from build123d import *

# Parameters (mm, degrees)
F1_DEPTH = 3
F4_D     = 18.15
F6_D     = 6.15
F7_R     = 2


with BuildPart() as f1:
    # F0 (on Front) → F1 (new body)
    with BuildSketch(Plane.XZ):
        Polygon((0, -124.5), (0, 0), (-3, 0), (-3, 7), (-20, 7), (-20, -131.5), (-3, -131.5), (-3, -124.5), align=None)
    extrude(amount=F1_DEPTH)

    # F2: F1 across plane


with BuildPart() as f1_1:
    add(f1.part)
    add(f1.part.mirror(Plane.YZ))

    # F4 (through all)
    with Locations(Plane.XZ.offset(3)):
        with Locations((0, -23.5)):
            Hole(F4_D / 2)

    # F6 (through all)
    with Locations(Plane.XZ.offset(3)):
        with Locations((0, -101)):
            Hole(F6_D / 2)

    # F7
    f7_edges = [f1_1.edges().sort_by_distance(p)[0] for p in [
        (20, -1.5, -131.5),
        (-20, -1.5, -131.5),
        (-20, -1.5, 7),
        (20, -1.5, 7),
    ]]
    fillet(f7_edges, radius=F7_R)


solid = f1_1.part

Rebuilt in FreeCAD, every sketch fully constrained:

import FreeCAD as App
import Part
import Sketcher
Q = App.Units.Quantity


def edges_at(feature, points):
    """Names of the edges that pass closest to the given points."""
    edges = feature.Shape.Edges
    near = lambda p: min(range(len(edges)), key=lambda i: edges[i].distToShape(Part.Vertex(*p))[0])
    return sorted({f"Edge{near(p) + 1}" for p in points})

doc = App.newDocument("Part")
params = doc.addObject("Spreadsheet::Sheet", "Params")
for row, (alias, value) in enumerate([
    ("sketch1_width", "3 mm"),
    ("sketch1_width2", "17 mm"),
    ("sketch1_height", "7 mm"),
    ("sketch1_height2", "124.5 mm"),
    ("pad1_length", "3 mm"),
    ("sketch2_diameter", "18.15 mm"),
    ("hole_diameter", "18.15 mm"),
    ("sketch3_diameter", "6.15 mm"),
    ("hole2_diameter", "6.15 mm"),
    ("fillet_radius", "2 mm"),
], start=1):
    params.set(f"A{row}", alias)
    params.set(f"B{row}", "=" + value)
    params.setAlias(f"B{row}", alias)

body = doc.addObject("PartDesign::Body", "Body")

# Sketch on XZ plane
sketch1 = doc.addObject("Sketcher::SketchObject", "Sketch")
body.addObject(sketch1)
sketch1.AttachmentSupport = (doc.XZ_Plane, [""])
sketch1.MapMode = "FlatFace"
sketch1.addGeometry([
    Part.LineSegment(App.Vector(0, -124.5, 0), App.Vector(0, 0, 0)),  # 0
    Part.LineSegment(App.Vector(0, 0, 0), App.Vector(-3, 0, 0)),  # 1
    Part.LineSegment(App.Vector(-3, 0, 0), App.Vector(-3, 7, 0)),  # 2
    Part.LineSegment(App.Vector(-3, 7, 0), App.Vector(-20, 7, 0)),  # 3
    Part.LineSegment(App.Vector(-20, 7, 0), App.Vector(-20, -131.5, 0)),  # 4
    Part.LineSegment(App.Vector(-20, -131.5, 0), App.Vector(-3, -131.5, 0)),  # 5
    Part.LineSegment(App.Vector(-3, -131.5, 0), App.Vector(-3, -124.5, 0)),  # 6
    Part.LineSegment(App.Vector(-3, -124.5, 0), App.Vector(0, -124.5, 0)),  # 7
], False)
sketch1.addConstraint([
    Sketcher.Constraint("Coincident", 0, 2, 1, 1),
    Sketcher.Constraint("Coincident", 1, 2, 2, 1),
    Sketcher.Constraint("Coincident", 2, 2, 3, 1),
    Sketcher.Constraint("Coincident", 3, 2, 4, 1),
    Sketcher.Constraint("Coincident", 4, 2, 5, 1),
    Sketcher.Constraint("Coincident", 5, 2, 6, 1),
    Sketcher.Constraint("Coincident", 6, 2, 7, 1),
    Sketcher.Constraint("Coincident", 7, 2, 0, 1),
    Sketcher.Constraint("Vertical", 0),
    Sketcher.Constraint("Horizontal", 1),
    Sketcher.Constraint("Vertical", 2),
    Sketcher.Constraint("Horizontal", 3),
    Sketcher.Constraint("Vertical", 4),
    Sketcher.Constraint("Horizontal", 5),
    Sketcher.Constraint("Vertical", 6),
    Sketcher.Constraint("Horizontal", 7),
    Sketcher.Constraint("Coincident", 0, 2, -1, 1),
    Sketcher.Constraint("Vertical", 2, 2, 5, 2),
    Sketcher.Constraint("Equal", 2, 6),
    Sketcher.Constraint("DistanceX", 1, 2, 1, 1, Q("3 mm")),
    Sketcher.Constraint("DistanceX", 3, 2, 3, 1, Q("17 mm")),
    Sketcher.Constraint("DistanceY", 2, 1, 2, 2, Q("7 mm")),
    Sketcher.Constraint("DistanceY", 0, 1, 0, 2, Q("124.5 mm")),
])
sketch1.setExpression("Constraints[19]", "Params.sketch1_width")
sketch1.setExpression("Constraints[20]", "Params.sketch1_width2")
sketch1.setExpression("Constraints[21]", "Params.sketch1_height")
sketch1.setExpression("Constraints[22]", "Params.sketch1_height2")
pad1 = doc.addObject("PartDesign::Pad", "Pad")
body.addObject(pad1)
pad1.Profile = sketch1
pad1.setExpression("Length", "Params.pad1_length")
body2 = doc.addObject("PartDesign::Body", "Body001")
doc.recompute()

body2.BaseFeature = body
doc.recompute()

mirroring = doc.addObject("Part::Mirroring", "Mirroring")
mirroring.Source = body
mirroring.Base = App.Vector(0, 0, 0)
mirroring.Normal = App.Vector(1, 0, 0)
body3 = doc.addObject("PartDesign::Body", "Body002")
body3.BaseFeature = mirroring
boolean = doc.addObject("PartDesign::Boolean", "Boolean")
body2.addObject(boolean)
boolean.Type = "Fuse"
boolean.addObjects([body3])
doc.recompute()

# Sketch on XZ plane
sketch2 = doc.addObject("Sketcher::SketchObject", "Sketch001")
body2.addObject(sketch2)
sketch2.AttachmentSupport = (doc.getObject("XZ_Plane001"), [""])
sketch2.MapMode = "FlatFace"
sketch2.AttachmentOffset = App.Placement(App.Vector(0, 0, 3), App.Rotation())
sketch2.addGeometry(Part.Circle(App.Vector(0, -24, 0), App.Vector(0, 0, 1), 9), False)
sketch2.addConstraint([
    Sketcher.Constraint("PointOnObject", 0, 3, -2),
    Sketcher.Constraint("Diameter", 0, Q("18.15 mm")),
    Sketcher.Constraint("DistanceY", 0, 3, -1, 1, Q("23.5 mm")),
])
sketch2.setExpression("Constraints[1]", "Params.sketch2_diameter")
doc.recompute()
hole = doc.addObject("PartDesign::Hole", "Hole")
body2.addObject(hole)
hole.Profile = sketch2
hole.ThreadType = "None"
hole.setExpression("Diameter", "Params.hole_diameter")
hole.DepthType = "ThroughAll"

# Sketch on XZ plane
sketch3 = doc.addObject("Sketcher::SketchObject", "Sketch002")
body2.addObject(sketch3)
sketch3.AttachmentSupport = (doc.getObject("XZ_Plane001"), [""])
sketch3.MapMode = "FlatFace"
sketch3.AttachmentOffset = App.Placement(App.Vector(0, 0, 3), App.Rotation())
sketch3.addGeometry(Part.Circle(App.Vector(0, -101, 0), App.Vector(0, 0, 1), 3.1), False)
sketch3.addConstraint([
    Sketcher.Constraint("PointOnObject", 0, 3, -2),
    Sketcher.Constraint("Diameter", 0, Q("6.15 mm")),
    Sketcher.Constraint("DistanceY", 0, 3, -1, 1, Q("101 mm")),
])
sketch3.setExpression("Constraints[1]", "Params.sketch3_diameter")
doc.recompute()
hole2 = doc.addObject("PartDesign::Hole", "Hole001")
body2.addObject(hole2)
hole2.Profile = sketch3
hole2.ThreadType = "None"
hole2.setExpression("Diameter", "Params.hole2_diameter")
hole2.DepthType = "ThroughAll"
doc.recompute()

fillet = doc.addObject("PartDesign::Fillet", "Fillet")
body2.addObject(fillet)
fillet.Base = (hole2, edges_at(hole2, [
    (20, -1.5, -131.5),
    (-20, -1.5, -131.5),
    (-20, -1.5, 7),
    (20, -1.5, 7),
]))
fillet.setExpression("Radius", "Params.fillet_radius")
mirroring.Visibility = False

doc.recompute()
